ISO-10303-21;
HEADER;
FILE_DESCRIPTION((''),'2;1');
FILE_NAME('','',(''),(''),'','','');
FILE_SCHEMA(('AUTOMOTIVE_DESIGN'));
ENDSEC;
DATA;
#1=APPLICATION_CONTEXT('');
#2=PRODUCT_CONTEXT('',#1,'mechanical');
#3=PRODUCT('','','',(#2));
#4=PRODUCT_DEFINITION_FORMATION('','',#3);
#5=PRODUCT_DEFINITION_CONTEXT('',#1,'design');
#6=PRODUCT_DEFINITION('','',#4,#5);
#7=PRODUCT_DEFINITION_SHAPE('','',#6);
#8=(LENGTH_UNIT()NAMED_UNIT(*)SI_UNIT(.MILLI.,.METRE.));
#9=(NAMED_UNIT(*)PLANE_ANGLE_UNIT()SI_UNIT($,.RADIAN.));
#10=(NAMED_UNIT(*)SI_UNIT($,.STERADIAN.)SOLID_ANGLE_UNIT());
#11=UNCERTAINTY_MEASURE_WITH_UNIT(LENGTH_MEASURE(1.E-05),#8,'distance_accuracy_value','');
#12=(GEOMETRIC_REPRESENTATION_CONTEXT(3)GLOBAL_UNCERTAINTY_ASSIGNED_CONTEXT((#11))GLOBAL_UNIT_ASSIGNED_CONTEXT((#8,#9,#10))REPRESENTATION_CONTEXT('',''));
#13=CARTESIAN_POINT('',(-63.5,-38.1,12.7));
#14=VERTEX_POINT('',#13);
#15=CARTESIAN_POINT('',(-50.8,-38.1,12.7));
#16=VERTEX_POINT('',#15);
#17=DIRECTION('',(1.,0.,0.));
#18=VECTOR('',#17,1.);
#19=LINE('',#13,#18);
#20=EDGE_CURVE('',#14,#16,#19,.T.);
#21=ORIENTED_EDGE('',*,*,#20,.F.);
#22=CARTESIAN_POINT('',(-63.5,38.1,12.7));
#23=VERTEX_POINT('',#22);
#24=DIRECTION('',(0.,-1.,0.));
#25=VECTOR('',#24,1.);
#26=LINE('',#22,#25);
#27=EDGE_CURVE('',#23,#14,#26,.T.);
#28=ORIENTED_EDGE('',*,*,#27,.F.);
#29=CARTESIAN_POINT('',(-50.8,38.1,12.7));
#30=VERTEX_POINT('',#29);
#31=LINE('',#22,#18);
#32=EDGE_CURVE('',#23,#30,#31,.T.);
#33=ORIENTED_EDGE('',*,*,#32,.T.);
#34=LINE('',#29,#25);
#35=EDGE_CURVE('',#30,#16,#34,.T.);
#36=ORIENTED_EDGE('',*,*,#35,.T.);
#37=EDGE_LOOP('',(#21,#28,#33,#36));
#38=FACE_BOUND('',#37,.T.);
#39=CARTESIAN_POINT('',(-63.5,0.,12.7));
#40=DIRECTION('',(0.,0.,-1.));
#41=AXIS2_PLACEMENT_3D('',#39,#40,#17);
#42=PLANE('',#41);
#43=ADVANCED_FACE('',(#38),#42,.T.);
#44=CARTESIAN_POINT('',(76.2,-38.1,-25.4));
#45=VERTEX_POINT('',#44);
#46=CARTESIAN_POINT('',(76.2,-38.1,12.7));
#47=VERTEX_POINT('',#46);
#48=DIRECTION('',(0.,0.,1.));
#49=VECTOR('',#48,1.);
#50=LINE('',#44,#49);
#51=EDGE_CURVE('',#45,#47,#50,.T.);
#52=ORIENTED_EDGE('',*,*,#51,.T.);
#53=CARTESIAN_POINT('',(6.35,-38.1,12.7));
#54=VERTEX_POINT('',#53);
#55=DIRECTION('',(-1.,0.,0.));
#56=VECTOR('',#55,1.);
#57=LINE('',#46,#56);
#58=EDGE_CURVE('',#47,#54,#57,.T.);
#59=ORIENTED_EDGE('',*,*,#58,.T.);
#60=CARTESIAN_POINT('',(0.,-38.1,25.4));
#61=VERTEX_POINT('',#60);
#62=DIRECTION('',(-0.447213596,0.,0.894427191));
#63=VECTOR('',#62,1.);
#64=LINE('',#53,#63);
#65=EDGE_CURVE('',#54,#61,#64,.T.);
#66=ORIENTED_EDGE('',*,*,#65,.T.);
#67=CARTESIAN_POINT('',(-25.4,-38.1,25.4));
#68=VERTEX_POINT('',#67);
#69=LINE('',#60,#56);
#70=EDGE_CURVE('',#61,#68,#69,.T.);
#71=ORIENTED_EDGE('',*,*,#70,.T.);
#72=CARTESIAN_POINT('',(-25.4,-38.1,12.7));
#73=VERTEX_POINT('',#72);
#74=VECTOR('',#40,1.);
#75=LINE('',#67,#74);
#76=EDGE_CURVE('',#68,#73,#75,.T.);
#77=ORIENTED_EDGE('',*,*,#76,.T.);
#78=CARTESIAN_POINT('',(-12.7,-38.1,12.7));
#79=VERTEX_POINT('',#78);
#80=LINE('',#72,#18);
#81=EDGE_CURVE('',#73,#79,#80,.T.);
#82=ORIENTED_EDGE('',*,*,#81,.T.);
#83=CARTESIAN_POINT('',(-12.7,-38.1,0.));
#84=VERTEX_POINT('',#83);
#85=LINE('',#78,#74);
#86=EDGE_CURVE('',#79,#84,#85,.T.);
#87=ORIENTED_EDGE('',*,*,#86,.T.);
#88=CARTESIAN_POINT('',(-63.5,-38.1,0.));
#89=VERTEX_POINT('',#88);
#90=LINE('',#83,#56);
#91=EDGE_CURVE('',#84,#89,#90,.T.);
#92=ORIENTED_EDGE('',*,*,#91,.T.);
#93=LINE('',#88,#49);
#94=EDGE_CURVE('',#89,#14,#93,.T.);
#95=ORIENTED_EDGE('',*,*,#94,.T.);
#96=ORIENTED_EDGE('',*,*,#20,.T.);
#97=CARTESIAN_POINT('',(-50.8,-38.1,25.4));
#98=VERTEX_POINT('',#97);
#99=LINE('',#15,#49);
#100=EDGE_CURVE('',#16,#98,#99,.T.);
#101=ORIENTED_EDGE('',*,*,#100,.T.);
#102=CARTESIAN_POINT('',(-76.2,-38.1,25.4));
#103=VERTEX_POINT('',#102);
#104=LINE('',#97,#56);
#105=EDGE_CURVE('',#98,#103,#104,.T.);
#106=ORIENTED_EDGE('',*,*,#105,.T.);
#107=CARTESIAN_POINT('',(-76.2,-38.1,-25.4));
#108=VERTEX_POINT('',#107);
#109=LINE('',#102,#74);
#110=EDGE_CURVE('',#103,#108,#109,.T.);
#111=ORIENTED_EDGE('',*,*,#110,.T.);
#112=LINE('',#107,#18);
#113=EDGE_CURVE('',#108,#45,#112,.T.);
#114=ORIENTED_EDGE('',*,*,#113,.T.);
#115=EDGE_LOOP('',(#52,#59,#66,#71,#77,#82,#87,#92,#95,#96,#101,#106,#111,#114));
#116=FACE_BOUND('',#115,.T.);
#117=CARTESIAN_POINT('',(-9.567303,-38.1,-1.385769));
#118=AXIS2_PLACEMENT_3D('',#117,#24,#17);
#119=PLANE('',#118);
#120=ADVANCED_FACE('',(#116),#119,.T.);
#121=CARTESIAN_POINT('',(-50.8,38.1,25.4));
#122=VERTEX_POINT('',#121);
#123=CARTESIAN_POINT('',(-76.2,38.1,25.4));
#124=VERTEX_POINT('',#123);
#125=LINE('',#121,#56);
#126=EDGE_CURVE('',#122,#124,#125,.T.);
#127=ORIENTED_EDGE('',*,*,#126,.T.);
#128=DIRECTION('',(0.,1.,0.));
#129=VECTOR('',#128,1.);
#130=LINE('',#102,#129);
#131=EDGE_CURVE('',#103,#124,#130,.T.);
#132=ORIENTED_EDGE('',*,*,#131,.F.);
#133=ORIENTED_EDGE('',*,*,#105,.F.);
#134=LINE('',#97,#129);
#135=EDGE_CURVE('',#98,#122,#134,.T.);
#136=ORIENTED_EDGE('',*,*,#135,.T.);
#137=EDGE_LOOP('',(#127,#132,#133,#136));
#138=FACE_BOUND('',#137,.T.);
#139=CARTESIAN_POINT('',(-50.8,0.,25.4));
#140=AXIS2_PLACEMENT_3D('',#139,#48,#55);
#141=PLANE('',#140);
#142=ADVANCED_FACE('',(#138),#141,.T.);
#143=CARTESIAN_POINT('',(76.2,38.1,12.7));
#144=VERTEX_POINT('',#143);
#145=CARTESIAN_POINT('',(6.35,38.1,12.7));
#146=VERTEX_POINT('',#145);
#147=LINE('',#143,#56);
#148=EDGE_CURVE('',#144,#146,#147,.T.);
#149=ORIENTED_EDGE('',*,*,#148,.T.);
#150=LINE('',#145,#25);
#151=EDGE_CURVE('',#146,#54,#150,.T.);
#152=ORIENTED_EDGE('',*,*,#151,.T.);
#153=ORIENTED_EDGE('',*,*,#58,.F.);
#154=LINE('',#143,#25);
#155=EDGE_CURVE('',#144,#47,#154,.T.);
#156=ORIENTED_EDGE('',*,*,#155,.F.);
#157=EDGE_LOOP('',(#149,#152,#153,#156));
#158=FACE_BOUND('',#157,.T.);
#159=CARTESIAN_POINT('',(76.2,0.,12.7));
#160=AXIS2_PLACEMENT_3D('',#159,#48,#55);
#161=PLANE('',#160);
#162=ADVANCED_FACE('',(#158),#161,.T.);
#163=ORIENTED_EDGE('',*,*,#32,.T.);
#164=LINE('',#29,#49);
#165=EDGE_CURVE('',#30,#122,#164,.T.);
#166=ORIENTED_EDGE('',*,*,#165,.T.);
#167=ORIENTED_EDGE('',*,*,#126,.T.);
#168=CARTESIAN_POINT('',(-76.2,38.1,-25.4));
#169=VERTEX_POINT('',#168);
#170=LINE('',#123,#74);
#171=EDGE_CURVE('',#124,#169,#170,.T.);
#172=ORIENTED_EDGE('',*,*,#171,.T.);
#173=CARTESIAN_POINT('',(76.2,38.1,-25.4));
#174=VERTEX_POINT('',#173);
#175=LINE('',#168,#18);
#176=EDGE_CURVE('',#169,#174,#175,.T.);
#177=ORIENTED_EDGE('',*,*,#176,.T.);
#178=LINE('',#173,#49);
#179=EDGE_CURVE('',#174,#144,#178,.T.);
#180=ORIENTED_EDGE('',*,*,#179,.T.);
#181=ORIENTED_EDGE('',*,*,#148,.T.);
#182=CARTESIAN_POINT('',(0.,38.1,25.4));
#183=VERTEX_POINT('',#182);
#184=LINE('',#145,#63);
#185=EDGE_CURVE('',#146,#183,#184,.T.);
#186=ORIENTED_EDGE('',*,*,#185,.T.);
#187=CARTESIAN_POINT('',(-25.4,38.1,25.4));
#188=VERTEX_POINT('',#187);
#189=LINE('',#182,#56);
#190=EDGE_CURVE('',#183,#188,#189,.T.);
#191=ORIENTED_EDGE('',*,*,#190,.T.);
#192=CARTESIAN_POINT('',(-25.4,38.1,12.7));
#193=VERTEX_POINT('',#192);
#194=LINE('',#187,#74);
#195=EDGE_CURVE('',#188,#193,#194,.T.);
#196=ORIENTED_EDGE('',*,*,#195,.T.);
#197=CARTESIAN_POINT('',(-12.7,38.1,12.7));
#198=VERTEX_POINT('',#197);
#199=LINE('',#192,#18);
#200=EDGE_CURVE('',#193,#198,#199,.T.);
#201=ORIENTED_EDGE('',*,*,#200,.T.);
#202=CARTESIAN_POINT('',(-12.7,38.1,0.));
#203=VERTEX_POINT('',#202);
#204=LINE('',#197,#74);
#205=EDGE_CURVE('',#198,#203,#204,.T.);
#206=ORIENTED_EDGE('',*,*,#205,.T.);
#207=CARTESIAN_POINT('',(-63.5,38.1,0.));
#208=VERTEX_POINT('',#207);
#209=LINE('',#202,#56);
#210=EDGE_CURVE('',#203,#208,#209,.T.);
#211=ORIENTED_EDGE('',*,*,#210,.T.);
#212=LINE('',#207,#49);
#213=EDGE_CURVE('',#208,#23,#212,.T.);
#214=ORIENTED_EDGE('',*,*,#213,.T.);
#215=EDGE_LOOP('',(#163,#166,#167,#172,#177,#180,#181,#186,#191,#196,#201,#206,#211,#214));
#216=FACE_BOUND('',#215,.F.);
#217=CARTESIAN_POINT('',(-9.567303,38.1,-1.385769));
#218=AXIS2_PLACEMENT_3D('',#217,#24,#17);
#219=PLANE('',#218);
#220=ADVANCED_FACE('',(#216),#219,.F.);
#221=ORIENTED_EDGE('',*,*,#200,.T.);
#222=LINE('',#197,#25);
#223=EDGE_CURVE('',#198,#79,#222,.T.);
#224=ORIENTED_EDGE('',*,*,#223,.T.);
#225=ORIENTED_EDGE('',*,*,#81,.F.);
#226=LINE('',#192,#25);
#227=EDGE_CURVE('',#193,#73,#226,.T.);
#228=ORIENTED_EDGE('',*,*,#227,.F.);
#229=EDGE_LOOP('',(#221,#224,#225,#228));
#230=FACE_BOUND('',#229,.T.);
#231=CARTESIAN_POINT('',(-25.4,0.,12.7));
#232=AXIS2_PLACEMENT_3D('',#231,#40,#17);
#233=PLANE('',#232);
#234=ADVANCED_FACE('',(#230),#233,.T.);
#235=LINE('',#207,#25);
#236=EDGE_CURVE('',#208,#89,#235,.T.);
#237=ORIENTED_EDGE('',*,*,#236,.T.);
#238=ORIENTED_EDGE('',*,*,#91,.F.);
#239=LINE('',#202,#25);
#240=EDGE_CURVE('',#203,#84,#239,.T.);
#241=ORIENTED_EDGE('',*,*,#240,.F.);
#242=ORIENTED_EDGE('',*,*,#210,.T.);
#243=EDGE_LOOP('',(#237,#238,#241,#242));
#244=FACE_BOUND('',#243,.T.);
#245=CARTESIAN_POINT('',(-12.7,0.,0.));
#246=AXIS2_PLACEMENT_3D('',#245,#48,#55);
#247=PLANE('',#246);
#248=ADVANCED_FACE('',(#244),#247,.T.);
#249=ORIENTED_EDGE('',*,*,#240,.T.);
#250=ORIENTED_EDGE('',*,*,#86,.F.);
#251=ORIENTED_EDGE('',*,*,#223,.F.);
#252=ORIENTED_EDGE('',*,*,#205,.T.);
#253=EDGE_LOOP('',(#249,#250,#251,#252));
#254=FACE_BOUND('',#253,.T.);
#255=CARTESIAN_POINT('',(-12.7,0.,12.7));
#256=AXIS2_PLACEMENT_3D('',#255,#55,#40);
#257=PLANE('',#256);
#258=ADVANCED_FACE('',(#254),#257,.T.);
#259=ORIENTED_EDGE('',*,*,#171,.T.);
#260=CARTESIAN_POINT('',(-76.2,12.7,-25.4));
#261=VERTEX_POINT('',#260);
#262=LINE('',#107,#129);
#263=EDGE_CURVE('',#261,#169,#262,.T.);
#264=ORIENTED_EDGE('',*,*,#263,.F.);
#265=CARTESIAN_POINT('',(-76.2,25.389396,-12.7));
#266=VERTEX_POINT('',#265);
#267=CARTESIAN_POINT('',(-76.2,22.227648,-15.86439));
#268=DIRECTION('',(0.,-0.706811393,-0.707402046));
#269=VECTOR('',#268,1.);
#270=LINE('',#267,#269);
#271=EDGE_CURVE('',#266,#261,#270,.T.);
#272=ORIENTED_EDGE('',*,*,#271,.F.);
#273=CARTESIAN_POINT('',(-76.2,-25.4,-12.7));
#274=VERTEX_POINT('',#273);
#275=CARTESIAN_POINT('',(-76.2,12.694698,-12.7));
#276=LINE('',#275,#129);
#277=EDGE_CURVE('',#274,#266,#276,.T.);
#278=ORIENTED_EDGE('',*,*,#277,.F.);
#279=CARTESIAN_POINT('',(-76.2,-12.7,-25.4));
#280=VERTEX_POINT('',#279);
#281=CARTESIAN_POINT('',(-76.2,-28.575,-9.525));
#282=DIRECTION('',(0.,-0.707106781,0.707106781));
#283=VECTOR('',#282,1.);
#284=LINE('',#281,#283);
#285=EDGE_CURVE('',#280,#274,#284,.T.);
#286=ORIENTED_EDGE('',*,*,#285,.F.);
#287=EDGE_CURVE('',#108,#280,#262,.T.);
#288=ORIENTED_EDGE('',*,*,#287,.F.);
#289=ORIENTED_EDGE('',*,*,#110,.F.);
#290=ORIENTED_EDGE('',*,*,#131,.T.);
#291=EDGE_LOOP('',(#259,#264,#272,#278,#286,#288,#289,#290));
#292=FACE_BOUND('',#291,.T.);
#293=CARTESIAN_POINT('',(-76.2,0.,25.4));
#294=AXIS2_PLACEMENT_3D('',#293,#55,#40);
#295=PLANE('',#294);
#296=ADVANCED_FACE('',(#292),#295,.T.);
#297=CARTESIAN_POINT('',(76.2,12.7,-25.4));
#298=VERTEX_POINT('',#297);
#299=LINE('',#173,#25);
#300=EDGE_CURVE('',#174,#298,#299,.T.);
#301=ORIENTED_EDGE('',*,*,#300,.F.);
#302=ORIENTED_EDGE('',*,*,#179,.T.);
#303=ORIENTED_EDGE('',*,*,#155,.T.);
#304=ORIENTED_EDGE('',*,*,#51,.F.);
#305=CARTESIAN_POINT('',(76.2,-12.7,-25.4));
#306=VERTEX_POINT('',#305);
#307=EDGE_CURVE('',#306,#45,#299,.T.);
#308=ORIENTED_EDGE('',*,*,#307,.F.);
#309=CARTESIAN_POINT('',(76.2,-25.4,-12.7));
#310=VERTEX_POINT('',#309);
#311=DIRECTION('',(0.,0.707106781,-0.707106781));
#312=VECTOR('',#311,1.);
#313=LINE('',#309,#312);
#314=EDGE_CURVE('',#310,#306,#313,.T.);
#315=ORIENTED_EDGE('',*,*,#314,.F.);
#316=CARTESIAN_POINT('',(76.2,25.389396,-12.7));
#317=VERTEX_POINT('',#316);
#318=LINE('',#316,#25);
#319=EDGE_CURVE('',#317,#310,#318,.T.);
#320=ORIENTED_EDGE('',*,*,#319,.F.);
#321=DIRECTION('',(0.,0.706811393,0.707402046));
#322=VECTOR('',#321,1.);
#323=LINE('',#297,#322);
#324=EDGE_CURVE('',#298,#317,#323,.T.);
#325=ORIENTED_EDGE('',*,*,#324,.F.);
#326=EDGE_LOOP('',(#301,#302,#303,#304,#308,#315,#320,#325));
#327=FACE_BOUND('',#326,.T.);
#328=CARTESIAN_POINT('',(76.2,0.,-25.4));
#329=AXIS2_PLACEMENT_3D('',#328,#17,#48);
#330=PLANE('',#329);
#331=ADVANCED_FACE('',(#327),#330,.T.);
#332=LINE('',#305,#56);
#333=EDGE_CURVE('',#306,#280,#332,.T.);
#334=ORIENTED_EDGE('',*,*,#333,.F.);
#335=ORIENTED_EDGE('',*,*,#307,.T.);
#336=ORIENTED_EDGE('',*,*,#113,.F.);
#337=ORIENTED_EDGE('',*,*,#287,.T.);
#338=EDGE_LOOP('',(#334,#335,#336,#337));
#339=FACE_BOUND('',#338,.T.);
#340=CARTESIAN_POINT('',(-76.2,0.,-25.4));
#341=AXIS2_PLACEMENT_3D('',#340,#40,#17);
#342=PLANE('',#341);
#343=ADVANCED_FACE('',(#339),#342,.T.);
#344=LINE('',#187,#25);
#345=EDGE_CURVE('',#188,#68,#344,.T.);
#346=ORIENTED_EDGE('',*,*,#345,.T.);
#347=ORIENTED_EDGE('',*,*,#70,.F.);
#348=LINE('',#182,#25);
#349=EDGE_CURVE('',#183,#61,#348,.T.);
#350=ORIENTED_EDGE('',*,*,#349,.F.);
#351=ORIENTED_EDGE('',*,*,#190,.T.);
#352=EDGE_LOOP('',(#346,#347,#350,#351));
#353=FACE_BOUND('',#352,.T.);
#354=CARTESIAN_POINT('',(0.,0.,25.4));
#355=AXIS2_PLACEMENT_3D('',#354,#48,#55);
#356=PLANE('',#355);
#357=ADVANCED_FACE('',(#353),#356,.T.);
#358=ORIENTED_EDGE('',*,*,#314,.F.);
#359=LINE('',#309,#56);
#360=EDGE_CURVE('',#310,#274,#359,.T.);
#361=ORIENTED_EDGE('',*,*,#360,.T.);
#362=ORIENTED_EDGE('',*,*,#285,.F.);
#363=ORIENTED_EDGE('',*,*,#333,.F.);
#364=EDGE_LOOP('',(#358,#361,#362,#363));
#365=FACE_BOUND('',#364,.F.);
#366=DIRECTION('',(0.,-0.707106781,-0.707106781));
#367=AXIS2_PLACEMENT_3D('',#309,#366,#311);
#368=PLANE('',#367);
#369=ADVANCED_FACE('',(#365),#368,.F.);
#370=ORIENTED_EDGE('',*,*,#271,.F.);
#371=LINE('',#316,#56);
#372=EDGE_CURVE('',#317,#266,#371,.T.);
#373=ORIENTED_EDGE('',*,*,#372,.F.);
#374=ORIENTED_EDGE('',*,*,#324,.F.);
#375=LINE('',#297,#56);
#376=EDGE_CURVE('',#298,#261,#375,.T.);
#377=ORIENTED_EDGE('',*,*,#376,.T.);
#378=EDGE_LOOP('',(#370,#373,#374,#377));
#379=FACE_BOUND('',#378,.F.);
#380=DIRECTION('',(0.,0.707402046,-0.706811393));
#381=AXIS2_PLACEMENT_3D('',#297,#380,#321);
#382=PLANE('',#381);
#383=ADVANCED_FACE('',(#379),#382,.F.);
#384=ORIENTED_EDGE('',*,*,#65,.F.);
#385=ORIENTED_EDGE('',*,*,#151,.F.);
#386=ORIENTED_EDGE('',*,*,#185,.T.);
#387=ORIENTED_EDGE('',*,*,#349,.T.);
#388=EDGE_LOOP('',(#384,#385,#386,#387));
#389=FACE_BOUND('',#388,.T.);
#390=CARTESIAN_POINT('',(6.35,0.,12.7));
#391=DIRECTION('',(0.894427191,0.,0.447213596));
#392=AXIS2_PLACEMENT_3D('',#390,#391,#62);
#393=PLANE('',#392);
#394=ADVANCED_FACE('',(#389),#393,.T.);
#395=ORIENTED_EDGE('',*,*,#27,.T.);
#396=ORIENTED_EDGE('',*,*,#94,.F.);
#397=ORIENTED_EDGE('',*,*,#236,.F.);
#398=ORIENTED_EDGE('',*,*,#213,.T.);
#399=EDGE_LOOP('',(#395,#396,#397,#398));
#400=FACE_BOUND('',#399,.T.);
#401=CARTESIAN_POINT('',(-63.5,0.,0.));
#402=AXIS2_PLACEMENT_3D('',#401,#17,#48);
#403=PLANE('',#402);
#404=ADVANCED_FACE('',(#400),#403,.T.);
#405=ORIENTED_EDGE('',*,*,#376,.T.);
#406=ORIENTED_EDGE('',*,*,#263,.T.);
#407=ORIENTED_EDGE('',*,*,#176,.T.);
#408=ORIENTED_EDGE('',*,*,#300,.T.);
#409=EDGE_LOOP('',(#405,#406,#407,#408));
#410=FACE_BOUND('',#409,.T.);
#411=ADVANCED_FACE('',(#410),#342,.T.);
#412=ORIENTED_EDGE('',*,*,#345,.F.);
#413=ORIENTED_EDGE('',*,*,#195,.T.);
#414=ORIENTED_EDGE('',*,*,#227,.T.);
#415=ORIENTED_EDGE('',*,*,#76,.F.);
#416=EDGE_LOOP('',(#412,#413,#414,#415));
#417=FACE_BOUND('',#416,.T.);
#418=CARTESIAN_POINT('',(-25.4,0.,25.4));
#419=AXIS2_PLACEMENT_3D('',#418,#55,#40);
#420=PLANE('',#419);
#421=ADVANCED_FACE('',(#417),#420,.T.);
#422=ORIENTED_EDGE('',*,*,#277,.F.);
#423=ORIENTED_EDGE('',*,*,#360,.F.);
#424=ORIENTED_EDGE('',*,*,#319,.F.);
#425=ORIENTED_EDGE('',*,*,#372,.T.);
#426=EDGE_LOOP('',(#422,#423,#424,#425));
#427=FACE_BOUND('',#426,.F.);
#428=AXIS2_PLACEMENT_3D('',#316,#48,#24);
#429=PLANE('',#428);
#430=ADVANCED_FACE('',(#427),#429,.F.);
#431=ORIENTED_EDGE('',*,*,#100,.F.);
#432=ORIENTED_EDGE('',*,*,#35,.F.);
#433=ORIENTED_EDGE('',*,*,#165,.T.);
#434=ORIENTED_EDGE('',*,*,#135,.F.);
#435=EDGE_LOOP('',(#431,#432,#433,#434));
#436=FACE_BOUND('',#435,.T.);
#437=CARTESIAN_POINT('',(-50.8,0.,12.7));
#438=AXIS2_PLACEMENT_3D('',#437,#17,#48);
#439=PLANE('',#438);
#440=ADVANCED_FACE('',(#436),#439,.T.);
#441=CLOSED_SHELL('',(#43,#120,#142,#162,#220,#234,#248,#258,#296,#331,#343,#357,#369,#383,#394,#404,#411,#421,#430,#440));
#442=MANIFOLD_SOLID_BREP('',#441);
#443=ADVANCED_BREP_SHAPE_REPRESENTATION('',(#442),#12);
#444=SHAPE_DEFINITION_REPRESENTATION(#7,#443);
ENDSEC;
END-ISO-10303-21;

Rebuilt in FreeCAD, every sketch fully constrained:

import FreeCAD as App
import Part
import Sketcher

V = App.Vector
Q = App.Units.Quantity

doc = App.newDocument("Part")
params = doc.addObject("Spreadsheet::Sheet", "Params")
for row, (alias, value) in enumerate([
    ("sketch1_width", "6 in"),
    ("sketch1_width2", "1 in"),
    ("sketch1_width3", "2.75 in"),
    ("pad1_length", "3 in"),
    ("sketch2_width", "1 in"),
], start=1):
    params.set(f"A{row}", alias)
    params.set(f"B{row}", "=" + value)
    params.setAlias(f"B{row}", alias)

body = doc.addObject("PartDesign::Body", "Body")

sketch1 = body.newObject("Sketcher::SketchObject", "Sketch")
sketch1.AttachmentSupport = (doc.getObject("XZ_Plane"), [""])
sketch1.MapMode = "FlatFace"
sketch1.addGeometry(Part.LineSegment(V(-76, -25, 0), V(76, -25, 0)), False)
sketch1.addGeometry(Part.LineSegment(V(76, -25, 0), V(76, 13, 0)), False)
sketch1.addGeometry(Part.LineSegment(V(76, 13, 0), V(6, 13, 0)), False)
sketch1.addGeometry(Part.LineSegment(V(6, 13, 0), V(0, 25, 0)), False)
sketch1.addGeometry(Part.LineSegment(V(0, 25, 0), V(-25, 25, 0)), False)
sketch1.addGeometry(Part.LineSegment(V(-25, 25, 0), V(-25, 13, 0)), False)
sketch1.addGeometry(Part.LineSegment(V(-25, 13, 0), V(-13, 13, 0)), False)
sketch1.addGeometry(Part.LineSegment(V(-13, 13, 0), V(-13, 0, 0)), False)
sketch1.addGeometry(Part.LineSegment(V(-13, 0, 0), V(-64, 0, 0)), False)
sketch1.addGeometry(Part.LineSegment(V(-64, 0, 0), V(-64, 13, 0)), False)
sketch1.addGeometry(Part.LineSegment(V(-64, 13, 0), V(-51, 13, 0)), False)
sketch1.addGeometry(Part.LineSegment(V(-51, 13, 0), V(-51, 25, 0)), False)
sketch1.addGeometry(Part.LineSegment(V(-51, 25, 0), V(-76, 25, 0)), False)
sketch1.addGeometry(Part.LineSegment(V(-76, 25, 0), V(-76, -25, 0)), False)
sketch1.addConstraint(Sketcher.Constraint("Coincident", 0, 2, 1, 1))
sketch1.addConstraint(Sketcher.Constraint("Coincident", 1, 2, 2, 1))
sketch1.addConstraint(Sketcher.Constraint("Coincident", 2, 2, 3, 1))
sketch1.addConstraint(Sketcher.Constraint("Coincident", 3, 2, 4, 1))
sketch1.addConstraint(Sketcher.Constraint("Coincident", 4, 2, 5, 1))
sketch1.addConstraint(Sketcher.Constraint("Coincident", 5, 2, 6, 1))
sketch1.addConstraint(Sketcher.Constraint("Coincident", 6, 2, 7, 1))
sketch1.addConstraint(Sketcher.Constraint("Coincident", 7, 2, 8, 1))
sketch1.addConstraint(Sketcher.Constraint("Coincident", 8, 2, 9, 1))
sketch1.addConstraint(Sketcher.Constraint("Coincident", 9, 2, 10, 1))
sketch1.addConstraint(Sketcher.Constraint("Coincident", 10, 2, 11, 1))
sketch1.addConstraint(Sketcher.Constraint("Coincident", 11, 2, 12, 1))
sketch1.addConstraint(Sketcher.Constraint("Coincident", 12, 2, 13, 1))
sketch1.addConstraint(Sketcher.Constraint("Coincident", 13, 2, 0, 1))
sketch1.addConstraint(Sketcher.Constraint("Horizontal", 0))
sketch1.addConstraint(Sketcher.Constraint("Vertical", 1))
sketch1.addConstraint(Sketcher.Constraint("Horizontal", 2))
sketch1.addConstraint(Sketcher.Constraint("Horizontal", 4))
sketch1.addConstraint(Sketcher.Constraint("Vertical", 5))
sketch1.addConstraint(Sketcher.Constraint("Horizontal", 6))
sketch1.addConstraint(Sketcher.Constraint("Vertical", 7))
sketch1.addConstraint(Sketcher.Constraint("Horizontal", 8))
sketch1.addConstraint(Sketcher.Constraint("Vertical", 9))
sketch1.addConstraint(Sketcher.Constraint("Horizontal", 10))
sketch1.addConstraint(Sketcher.Constraint("Vertical", 11))
sketch1.addConstraint(Sketcher.Constraint("Horizontal", 12))
sketch1.addConstraint(Sketcher.Constraint("Vertical", 13))
sketch1.addConstraint(Sketcher.Constraint("Symmetric", 0, 2, 12, 2, -1, 1))
sketch1.addConstraint(Sketcher.Constraint("PointOnObject", 3, 2, -2))
sketch1.addConstraint(Sketcher.Constraint("PointOnObject", 7, 2, -1))
sketch1.addConstraint(Sketcher.Constraint("Horizontal", 2, 2, 5, 2))
sketch1.addConstraint(Sketcher.Constraint("Horizontal", 6, 2, 9, 2))
sketch1.addConstraint(Sketcher.Constraint("Horizontal", 4, 2, 11, 2))
sketch1.addConstraint(Sketcher.Constraint("Equal", 6, 10))
sketch1.addConstraint(Sketcher.Constraint("Equal", 4, 12))
sketch1.addConstraint(Sketcher.Constraint("Equal", 10, 5))
sketch1.addConstraint(Sketcher.Constraint("Equal", 5, 7))
sketch1.addConstraint(Sketcher.Constraint("Equal", 8, 13))
sketch1.addConstraint(Sketcher.Constraint("DistanceX", 0, 1, 0, 2, Q("6 in")))
sketch1.addConstraint(Sketcher.Constraint("DistanceX", 4, 2, 4, 1, Q("1 in")))
sketch1.addConstraint(Sketcher.Constraint("DistanceX", 2, 2, 2, 1, Q("2.75 in")))
sketch1.setExpression("Constraints[38]", "Params.sketch1_width")
sketch1.setExpression("Constraints[39]", "Params.sketch1_width2")
sketch1.setExpression("Constraints[40]", "Params.sketch1_width3")
pad1 = body.newObject("PartDesign::Pad", "Pad")
pad1.Profile = sketch1
pad1.setExpression("Length", "Params.pad1_length")
pad1.Midplane = True

sketch2 = body.newObject("Sketcher::SketchObject", "Sketch001")
sketch2.AttachmentSupport = (doc.getObject("YZ_Plane"), [""])
sketch2.MapMode = "FlatFace"
sketch2.AttachmentOffset = App.Placement(V(0, 0, 3 * 25.4), App.Rotation())
sketch2.addGeometry(Part.LineSegment(V(25, -13, 0), V(-25, -13, 0)), False)
sketch2.addGeometry(Part.LineSegment(V(-25, -13, 0), V(-13, -25, 0)), False)
sketch2.addGeometry(Part.LineSegment(V(-13, -25, 0), V(13, -25, 0)), False)
sketch2.addGeometry(Part.LineSegment(V(13, -25, 0), V(25, -13, 0)), False)
sketch2.addConstraint(Sketcher.Constraint("Coincident", 0, 2, 1, 1))
sketch2.addConstraint(Sketcher.Constraint("Coincident", 1, 2, 2, 1))
sketch2.addConstraint(Sketcher.Constraint("Coincident", 2, 2, 3, 1))
sketch2.addConstraint(Sketcher.Constraint("Coincident", 3, 2, 0, 1))
sketch2.addConstraint(Sketcher.Constraint("Horizontal", 0))
sketch2.addConstraint(Sketcher.Constraint("Horizontal", 2))
sketch2.addConstraint(Sketcher.Constraint("DistanceX", 2, 1, 2, 2, Q("1 in")))
sketch2.addConstraint(Sketcher.Constraint("DistanceX", 0, 2, -1, 1, Q("1 in")))
sketch2.addConstraint(Sketcher.Constraint("DistanceY", 1, 2, -1, 1, Q("1 in")))
sketch2.addConstraint(Sketcher.Constraint("Angle", 1, Q("-45 deg")))
sketch2.addConstraint(Sketcher.Constraint("DistanceY", 0, 2, -1, 1, Q("0.5 in")))
sketch2.addConstraint(Sketcher.Constraint("DistanceX", 0, 2, 0, 1, Q("50.789396 mm")))
sketch2.setExpression("Constraints[6]", "Params.sketch2_width")
pocket1 = body.newObject("PartDesign::Pocket", "Pocket")
pocket1.Profile = sketch2
pocket1.Type = "ThroughAll"

doc.recompute()
